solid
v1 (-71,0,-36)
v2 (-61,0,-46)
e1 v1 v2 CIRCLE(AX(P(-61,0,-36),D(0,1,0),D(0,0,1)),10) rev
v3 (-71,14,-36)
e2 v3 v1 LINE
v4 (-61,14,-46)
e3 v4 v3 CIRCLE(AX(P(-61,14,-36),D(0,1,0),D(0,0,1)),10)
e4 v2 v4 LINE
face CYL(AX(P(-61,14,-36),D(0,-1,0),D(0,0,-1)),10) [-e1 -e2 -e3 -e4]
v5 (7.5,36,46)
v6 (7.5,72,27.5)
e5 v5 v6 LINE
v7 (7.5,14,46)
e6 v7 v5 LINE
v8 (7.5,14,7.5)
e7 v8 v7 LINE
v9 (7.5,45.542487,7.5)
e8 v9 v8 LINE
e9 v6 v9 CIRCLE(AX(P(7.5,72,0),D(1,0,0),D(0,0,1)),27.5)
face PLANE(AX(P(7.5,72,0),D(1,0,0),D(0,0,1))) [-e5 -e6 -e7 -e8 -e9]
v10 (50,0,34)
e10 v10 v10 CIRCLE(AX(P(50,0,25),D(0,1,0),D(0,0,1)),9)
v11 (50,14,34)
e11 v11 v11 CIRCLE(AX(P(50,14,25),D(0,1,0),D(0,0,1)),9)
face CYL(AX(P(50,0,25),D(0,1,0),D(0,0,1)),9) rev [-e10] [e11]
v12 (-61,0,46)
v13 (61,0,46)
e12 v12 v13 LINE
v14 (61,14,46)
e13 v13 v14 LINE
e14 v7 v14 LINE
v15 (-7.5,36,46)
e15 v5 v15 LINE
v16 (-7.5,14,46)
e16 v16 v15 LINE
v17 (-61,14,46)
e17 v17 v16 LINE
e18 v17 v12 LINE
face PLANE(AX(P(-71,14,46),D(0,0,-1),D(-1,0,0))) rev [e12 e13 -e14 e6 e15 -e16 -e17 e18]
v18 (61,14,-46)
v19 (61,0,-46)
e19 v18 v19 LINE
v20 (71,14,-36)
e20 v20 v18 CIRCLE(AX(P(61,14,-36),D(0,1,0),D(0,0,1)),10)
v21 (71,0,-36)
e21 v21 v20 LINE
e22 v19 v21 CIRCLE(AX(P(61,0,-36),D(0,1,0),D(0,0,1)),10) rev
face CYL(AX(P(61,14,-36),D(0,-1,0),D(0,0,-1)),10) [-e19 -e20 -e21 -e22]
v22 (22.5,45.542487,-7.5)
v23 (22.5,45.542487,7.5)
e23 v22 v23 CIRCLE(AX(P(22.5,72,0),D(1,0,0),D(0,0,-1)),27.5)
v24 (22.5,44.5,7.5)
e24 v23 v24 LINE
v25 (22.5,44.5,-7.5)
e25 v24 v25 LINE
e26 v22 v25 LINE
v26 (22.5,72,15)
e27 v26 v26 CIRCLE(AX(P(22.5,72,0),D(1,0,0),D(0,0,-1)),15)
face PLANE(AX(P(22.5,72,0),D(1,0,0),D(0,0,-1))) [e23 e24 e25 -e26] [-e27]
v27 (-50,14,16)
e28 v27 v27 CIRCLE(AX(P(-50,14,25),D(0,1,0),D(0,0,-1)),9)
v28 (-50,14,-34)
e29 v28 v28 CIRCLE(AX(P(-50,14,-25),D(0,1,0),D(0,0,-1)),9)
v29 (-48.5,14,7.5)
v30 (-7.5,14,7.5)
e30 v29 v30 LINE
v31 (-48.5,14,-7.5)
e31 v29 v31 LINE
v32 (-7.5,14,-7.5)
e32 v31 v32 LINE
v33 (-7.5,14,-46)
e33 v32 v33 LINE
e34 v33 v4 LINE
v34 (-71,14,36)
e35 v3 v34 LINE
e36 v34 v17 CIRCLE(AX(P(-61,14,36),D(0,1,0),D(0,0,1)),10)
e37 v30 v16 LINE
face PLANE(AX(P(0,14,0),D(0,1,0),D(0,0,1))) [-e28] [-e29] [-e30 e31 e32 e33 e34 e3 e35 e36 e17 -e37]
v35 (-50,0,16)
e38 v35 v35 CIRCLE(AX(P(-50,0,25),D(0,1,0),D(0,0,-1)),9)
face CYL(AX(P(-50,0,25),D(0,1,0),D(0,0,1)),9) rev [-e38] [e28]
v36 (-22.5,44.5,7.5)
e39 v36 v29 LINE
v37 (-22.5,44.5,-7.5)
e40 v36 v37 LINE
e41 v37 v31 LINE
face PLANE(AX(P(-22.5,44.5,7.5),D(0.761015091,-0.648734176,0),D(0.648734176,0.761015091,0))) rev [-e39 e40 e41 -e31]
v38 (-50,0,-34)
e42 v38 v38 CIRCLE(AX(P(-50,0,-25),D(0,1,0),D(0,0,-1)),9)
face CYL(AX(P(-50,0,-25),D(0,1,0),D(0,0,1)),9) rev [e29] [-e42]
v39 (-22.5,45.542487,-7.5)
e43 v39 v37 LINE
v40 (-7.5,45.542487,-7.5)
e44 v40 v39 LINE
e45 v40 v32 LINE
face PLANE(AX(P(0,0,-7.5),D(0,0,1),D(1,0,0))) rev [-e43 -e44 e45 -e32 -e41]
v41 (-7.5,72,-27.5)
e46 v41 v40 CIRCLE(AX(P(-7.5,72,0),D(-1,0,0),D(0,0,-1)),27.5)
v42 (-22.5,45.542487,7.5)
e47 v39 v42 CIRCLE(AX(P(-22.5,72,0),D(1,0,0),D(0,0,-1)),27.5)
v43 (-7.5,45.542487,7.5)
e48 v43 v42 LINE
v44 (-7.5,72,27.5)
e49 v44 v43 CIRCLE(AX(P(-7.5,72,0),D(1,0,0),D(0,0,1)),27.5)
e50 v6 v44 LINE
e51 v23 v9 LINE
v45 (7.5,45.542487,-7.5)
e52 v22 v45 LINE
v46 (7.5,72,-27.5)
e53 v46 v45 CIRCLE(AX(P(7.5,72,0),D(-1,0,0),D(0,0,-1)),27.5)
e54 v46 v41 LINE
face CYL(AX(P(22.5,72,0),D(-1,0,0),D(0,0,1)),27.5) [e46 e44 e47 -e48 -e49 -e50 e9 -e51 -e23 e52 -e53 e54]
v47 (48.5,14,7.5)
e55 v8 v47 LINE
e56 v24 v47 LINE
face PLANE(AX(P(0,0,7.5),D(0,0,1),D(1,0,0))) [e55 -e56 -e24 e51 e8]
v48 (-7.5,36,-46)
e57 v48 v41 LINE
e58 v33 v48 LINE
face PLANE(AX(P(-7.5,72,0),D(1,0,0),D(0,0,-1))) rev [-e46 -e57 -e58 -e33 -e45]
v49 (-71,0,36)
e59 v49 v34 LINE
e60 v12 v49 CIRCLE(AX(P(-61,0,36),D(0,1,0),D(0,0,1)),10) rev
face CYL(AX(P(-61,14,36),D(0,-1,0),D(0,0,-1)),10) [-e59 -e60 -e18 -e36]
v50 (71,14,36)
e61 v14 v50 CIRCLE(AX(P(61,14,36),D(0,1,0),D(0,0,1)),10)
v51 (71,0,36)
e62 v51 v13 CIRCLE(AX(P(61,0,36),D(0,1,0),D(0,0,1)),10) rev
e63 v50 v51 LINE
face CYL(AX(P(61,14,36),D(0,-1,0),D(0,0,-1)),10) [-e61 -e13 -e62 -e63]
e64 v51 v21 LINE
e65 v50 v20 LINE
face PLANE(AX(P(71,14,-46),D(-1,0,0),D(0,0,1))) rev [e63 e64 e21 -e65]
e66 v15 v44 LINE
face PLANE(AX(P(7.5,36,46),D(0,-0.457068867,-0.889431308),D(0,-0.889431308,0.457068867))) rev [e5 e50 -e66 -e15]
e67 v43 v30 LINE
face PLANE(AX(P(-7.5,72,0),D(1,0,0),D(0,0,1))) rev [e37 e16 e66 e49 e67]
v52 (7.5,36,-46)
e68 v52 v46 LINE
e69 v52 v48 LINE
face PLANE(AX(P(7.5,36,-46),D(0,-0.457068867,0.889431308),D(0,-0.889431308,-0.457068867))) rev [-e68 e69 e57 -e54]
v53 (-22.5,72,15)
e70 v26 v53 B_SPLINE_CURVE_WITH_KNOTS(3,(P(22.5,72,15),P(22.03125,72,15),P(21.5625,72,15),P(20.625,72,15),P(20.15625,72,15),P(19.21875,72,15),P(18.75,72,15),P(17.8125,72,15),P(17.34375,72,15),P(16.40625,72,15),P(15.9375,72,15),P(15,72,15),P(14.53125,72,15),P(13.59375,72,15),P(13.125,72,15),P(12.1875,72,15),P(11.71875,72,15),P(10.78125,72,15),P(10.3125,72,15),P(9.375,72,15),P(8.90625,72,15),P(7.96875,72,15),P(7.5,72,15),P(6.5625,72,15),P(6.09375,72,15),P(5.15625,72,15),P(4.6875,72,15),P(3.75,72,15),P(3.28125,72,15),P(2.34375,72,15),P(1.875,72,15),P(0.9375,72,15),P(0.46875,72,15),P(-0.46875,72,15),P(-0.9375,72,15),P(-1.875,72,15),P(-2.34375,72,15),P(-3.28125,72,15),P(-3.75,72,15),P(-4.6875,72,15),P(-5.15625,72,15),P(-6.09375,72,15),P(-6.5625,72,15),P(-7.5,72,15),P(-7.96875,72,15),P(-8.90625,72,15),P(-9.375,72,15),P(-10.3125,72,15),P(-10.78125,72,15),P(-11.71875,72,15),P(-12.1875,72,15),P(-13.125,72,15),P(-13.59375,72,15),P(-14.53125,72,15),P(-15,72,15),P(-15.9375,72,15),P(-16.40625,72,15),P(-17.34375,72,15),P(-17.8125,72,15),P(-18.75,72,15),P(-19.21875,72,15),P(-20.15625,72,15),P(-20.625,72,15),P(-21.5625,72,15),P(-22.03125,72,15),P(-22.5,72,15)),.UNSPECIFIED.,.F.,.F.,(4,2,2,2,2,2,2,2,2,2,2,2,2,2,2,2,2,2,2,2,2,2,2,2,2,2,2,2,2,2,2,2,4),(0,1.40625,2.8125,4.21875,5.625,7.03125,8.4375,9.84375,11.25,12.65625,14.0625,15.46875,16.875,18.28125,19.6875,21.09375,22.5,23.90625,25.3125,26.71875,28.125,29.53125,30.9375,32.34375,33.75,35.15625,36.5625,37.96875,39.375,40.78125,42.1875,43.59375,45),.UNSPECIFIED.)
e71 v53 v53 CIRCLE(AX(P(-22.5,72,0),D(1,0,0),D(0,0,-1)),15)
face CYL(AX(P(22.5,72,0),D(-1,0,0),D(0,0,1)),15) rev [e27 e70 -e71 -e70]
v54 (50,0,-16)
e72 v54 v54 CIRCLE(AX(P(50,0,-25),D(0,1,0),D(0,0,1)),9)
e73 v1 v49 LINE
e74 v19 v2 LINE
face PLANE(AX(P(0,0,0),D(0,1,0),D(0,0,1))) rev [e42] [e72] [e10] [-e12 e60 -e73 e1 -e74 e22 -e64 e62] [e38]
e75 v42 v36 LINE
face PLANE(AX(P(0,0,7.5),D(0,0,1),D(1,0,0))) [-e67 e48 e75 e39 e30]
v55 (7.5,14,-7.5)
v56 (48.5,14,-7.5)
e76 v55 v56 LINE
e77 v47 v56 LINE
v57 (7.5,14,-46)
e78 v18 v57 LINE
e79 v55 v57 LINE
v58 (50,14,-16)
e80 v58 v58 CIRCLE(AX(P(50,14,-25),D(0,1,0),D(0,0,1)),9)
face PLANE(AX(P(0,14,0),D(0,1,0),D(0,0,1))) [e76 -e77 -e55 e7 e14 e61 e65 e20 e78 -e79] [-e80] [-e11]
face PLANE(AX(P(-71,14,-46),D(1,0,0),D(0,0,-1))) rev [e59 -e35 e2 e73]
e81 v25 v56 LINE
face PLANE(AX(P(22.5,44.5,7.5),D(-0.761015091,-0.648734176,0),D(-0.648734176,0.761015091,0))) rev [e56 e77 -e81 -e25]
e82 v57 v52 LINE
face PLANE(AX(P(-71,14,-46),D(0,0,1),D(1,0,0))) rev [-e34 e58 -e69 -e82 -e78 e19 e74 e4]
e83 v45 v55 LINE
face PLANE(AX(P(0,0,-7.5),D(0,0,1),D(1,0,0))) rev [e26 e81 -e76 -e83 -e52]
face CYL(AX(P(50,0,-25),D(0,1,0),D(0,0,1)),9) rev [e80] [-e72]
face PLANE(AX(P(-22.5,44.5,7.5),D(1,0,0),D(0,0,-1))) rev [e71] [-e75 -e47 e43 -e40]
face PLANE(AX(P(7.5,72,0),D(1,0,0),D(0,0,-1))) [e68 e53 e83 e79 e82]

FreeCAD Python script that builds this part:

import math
import FreeCAD as App
import Part
import Sketcher
Q = App.Units.Quantity


def edges_at(feature, points):
    """Names of the edges that pass closest to the given points."""
    edges = feature.Shape.Edges
    near = lambda p: min(range(len(edges)), key=lambda i: edges[i].distToShape(Part.Vertex(*p))[0])
    return sorted({f"Edge{near(p) + 1}" for p in points})

doc = App.newDocument("Part")
body = doc.addObject("PartDesign::Body", "Body")

# Sketch on XZ plane
sketch1 = body.newObject("Sketcher::SketchObject", "Sketch")
sketch1.AttachmentSupport = (doc.getObject("XZ_Plane"), [""])
sketch1.MapMode = "FlatFace"
sketch1.addGeometry([
    Part.LineSegment(App.Vector(-71, -46, 0), App.Vector(-71, 46, 0)),
    Part.LineSegment(App.Vector(-71, 46, 0), App.Vector(71, 46, 0)),
    Part.LineSegment(App.Vector(71, 46, 0), App.Vector(71, -46, 0)),
    Part.LineSegment(App.Vector(71, -46, 0), App.Vector(-71, -46, 0)),
], False)
sketch1.addConstraint([
    Sketcher.Constraint("Coincident", 0, 2, 1, 1),
    Sketcher.Constraint("Coincident", 1, 2, 2, 1),
    Sketcher.Constraint("Coincident", 2, 2, 3, 1),
    Sketcher.Constraint("Coincident", 3, 2, 0, 1),
    Sketcher.Constraint("Vertical", 0),
    Sketcher.Constraint("Horizontal", 1),
    Sketcher.Constraint("Vertical", 2),
    Sketcher.Constraint("Horizontal", 3),
    Sketcher.Constraint("Symmetric", 0, 2, 2, 2, -1, 1),
    Sketcher.Constraint("DistanceX", 1, 1, 1, 2, Q("142 mm")),
    Sketcher.Constraint("DistanceY", 0, 1, 0, 2, Q("92 mm")),
])
pad1 = body.newObject("PartDesign::Pad", "Pad")
pad1.Profile = sketch1
pad1.Length = 14
pad1.Reversed = True
doc.recompute()

fillet = body.newObject("PartDesign::Fillet", "Fillet")
fillet.Base = (pad1, edges_at(pad1, [
    (-71, 7, -46),
    (71, 7, -46),
    (71, 7, 46),
    (-71, 7, 46),
]))
fillet.Radius = 10
body2 = doc.addObject("PartDesign::Body", "Body001")

# Sketch on YZ plane
sketch2 = body2.newObject("Sketcher::SketchObject", "Sketch001")
sketch2.AttachmentSupport = (doc.getObject("YZ_Plane001"), [""])
sketch2.MapMode = "FlatFace"
sketch2.addGeometry([
    Part.Circle(App.Vector(72, 0, 0), App.Vector(0, 0, 1), 28),
    Part.Circle(App.Vector(72, 0, 0), App.Vector(0, 0, 1), 15),
], False)
sketch2.addConstraint([
    Sketcher.Constraint("Coincident", 1, 3, 0, 3),
    Sketcher.Constraint("PointOnObject", 0, 3, -1),
    Sketcher.Constraint("Diameter", 0, Q("55 mm")),
    Sketcher.Constraint("Diameter", 1, Q("30 mm")),
    Sketcher.Constraint("DistanceX", -1, 1, 0, 3, Q("72 mm")),
])
pad2 = body2.newObject("PartDesign::Pad", "Pad001")
pad2.Profile = sketch2
pad2.Length = 45
pad2.Midplane = True
body.AllowCompound = True
doc.recompute()

boolean = body.newObject("PartDesign::Boolean", "Boolean")
boolean.Type = "Fuse"
boolean.addObjects([body2])

# Sketch on XY plane
sketch3 = body.newObject("Sketcher::SketchObject", "Sketch002")
sketch3.AttachmentSupport = (doc.getObject("XY_Plane"), [""])
sketch3.MapMode = "FlatFace"
sketch3.addGeometry([
    Part.LineSegment(App.Vector(0, 50, 0), App.Vector(-22, 50, 0)),  # 0
    Part.LineSegment(App.Vector(-22, 50, 0), App.Vector(-22, 44, 0)),  # 1
    Part.LineSegment(App.Vector(-22, 44, 0), App.Vector(-48, 14, 0)),  # 2
    Part.LineSegment(App.Vector(-48, 14, 0), App.Vector(-48, 7, 0)),  # 3
    Part.LineSegment(App.Vector(-48, 7, 0), App.Vector(0, 7, 0)),  # 4
    Part.LineSegment(App.Vector(0, 7, 0), App.Vector(0, 50, 0)),  # 5
], False)
sketch3.addConstraint([
    Sketcher.Constraint("Coincident", 0, 2, 1, 1),
    Sketcher.Constraint("Coincident", 1, 2, 2, 1),
    Sketcher.Constraint("Coincident", 2, 2, 3, 1),
    Sketcher.Constraint("Coincident", 3, 2, 4, 1),
    Sketcher.Constraint("Coincident", 4, 2, 5, 1),
    Sketcher.Constraint("Coincident", 5, 2, 0, 1),
    Sketcher.Constraint("Horizontal", 0),
    Sketcher.Constraint("Vertical", 1),
    Sketcher.Constraint("Vertical", 3),
    Sketcher.Constraint("Horizontal", 4),
    Sketcher.Constraint("Vertical", 5),
    Sketcher.Constraint("PointOnObject", 4, 2, -2),
    Sketcher.Constraint("DistanceY", 1, 2, 1, 1, Q("5 mm")),
    Sketcher.Constraint("DistanceX", 0, 2, 0, 1, Q("22.5 mm")),
    Sketcher.Constraint("DistanceX", 4, 1, 4, 2, Q("48.5 mm")),
    Sketcher.Constraint("DistanceY", -1, 1, 2, 2, Q("14 mm")),
    Sketcher.Constraint("DistanceY", -1, 1, 0, 2, Q("49.5 mm")),
    Sketcher.Constraint("DistanceY", 3, 2, 3, 1, Q("7.470033 mm")),
])
pad3 = body.newObject("PartDesign::Pad", "Pad002")
pad3.Profile = sketch3
pad3.Length = 15
pad3.Midplane = True
body3 = doc.addObject("PartDesign::Body", "Body002")
doc.recompute()

body3.BaseFeature = body
doc.recompute()

mirroring = doc.addObject("Part::Mirroring", "Mirroring")
mirroring.Source = body
mirroring.Base = App.Vector(0, 0, 0)
mirroring.Normal = App.Vector(1, 0, 0)
body4 = doc.addObject("PartDesign::Body", "Body003")
body4.BaseFeature = mirroring
boolean2 = body3.newObject("PartDesign::Boolean", "Boolean001")
boolean2.Type = "Fuse"
boolean2.addObjects([body4])
doc.recompute()

# Sketch on YZ plane
sketch4 = body3.newObject("Sketcher::SketchObject", "Sketch003")
sketch4.AttachmentSupport = (doc.getObject("YZ_Plane002"), [""])
sketch4.MapMode = "FlatFace"
sketch4.addGeometry([
    Part.LineSegment(App.Vector(14, -8, 0), App.Vector(14, -46, 0)),  # 0
    Part.LineSegment(App.Vector(14, -46, 0), App.Vector(36, -46, 0)),  # 1
    Part.LineSegment(App.Vector(36, -46, 0), App.Vector(72, -28, 0)),  # 2
    Part.ArcOfCircle(Part.Circle(App.Vector(72, 0, 0), App.Vector(0, 0, 1), 28), math.radians(-164), math.radians(-90)),  # 3
    Part.LineSegment(App.Vector(46, -8, 0), App.Vector(14, -8, 0)),  # 4
], False)
sketch4.addConstraint([
    Sketcher.Constraint("Coincident", 0, 2, 1, 1),
    Sketcher.Constraint("Coincident", 1, 2, 2, 1),
    Sketcher.Constraint("Coincident", 2, 2, 3, 2),
    Sketcher.Constraint("Coincident", 3, 1, 4, 1),
    Sketcher.Constraint("Coincident", 4, 2, 0, 1),
    Sketcher.Constraint("Vertical", 0),
    Sketcher.Constraint("Horizontal", 1),
    Sketcher.Constraint("Horizontal", 4),
    Sketcher.Constraint("PointOnObject", 3, 3, -1),
    Sketcher.Constraint("Vertical", 3, 3, 2, 2),
    Sketcher.Constraint("Radius", 3, Q("27.5 mm")),
    Sketcher.Constraint("DistanceX", 1, 1, 1, 2, Q("22 mm")),
    Sketcher.Constraint("DistanceY", 0, 2, 0, 1, Q("38.5 mm")),
    Sketcher.Constraint("DistanceX", -1, 1, 3, 3, Q("72 mm")),
    Sketcher.Constraint("DistanceX", -1, 1, 0, 2, Q("14 mm")),
    Sketcher.Constraint("DistanceY", 0, 2, -1, 1, Q("46 mm")),
])
pad4 = body3.newObject("PartDesign::Pad", "Pad003")
pad4.Profile = sketch4
pad4.Length = 15
pad4.Midplane = True
body5 = doc.addObject("PartDesign::Body", "Body004")
doc.recompute()

body5.BaseFeature = body3
doc.recompute()

mirroring2 = doc.addObject("Part::Mirroring", "Mirroring001")
mirroring2.Source = body3
mirroring2.Base = App.Vector(0, 0, 0)
mirroring2.Normal = App.Vector(0, 0, 1)
body6 = doc.addObject("PartDesign::Body", "Body005")
body6.BaseFeature = mirroring2
boolean3 = body5.newObject("PartDesign::Boolean", "Boolean002")
boolean3.Type = "Fuse"
boolean3.addObjects([body6])
doc.recompute()

# Sketch on XZ plane
sketch5 = body5.newObject("Sketcher::SketchObject", "Sketch004")
sketch5.AttachmentSupport = (doc.getObject("XZ_Plane004"), [""])
sketch5.MapMode = "FlatFace"
sketch5.AttachmentOffset = App.Placement(App.Vector(0, 0, -14), App.Rotation())
sketch5.addGeometry([
    Part.Circle(App.Vector(50, 25, 0), App.Vector(0, 0, 1), 9),
    Part.Circle(App.Vector(50, -25, 0), App.Vector(0, 0, 1), 9),
    Part.Circle(App.Vector(-50, -25, 0), App.Vector(0, 0, 1), 9),
    Part.Circle(App.Vector(-50, 25, 0), App.Vector(0, 0, 1), 9),
], False)
sketch5.addConstraint([
    Sketcher.Constraint("Equal", 0, 1),
    Sketcher.Constraint("Equal", 1, 2),
    Sketcher.Constraint("Equal", 2, 3),
    Sketcher.Constraint("Symmetric", 0, 3, 2, 3, -1, 1),
    Sketcher.Constraint("Symmetric", 1, 3, 3, 3, -1, 1),
    Sketcher.Constraint("Symmetric", 1, 3, 2, 3, -2),
    Sketcher.Constraint("Diameter", 0, Q("18 mm")),
    Sketcher.Constraint("DistanceX", -1, 1, 0, 3, Q("50 mm")),
    Sketcher.Constraint("DistanceY", -1, 1, 0, 3, Q("25 mm")),
])
pocket1 = body5.newObject("PartDesign::Pocket", "Pocket")
pocket1.Profile = sketch5
pocket1.Type = "ThroughAll"
pocket1.Reversed = True
mirroring.Visibility = False
mirroring2.Visibility = False

doc.recompute()
